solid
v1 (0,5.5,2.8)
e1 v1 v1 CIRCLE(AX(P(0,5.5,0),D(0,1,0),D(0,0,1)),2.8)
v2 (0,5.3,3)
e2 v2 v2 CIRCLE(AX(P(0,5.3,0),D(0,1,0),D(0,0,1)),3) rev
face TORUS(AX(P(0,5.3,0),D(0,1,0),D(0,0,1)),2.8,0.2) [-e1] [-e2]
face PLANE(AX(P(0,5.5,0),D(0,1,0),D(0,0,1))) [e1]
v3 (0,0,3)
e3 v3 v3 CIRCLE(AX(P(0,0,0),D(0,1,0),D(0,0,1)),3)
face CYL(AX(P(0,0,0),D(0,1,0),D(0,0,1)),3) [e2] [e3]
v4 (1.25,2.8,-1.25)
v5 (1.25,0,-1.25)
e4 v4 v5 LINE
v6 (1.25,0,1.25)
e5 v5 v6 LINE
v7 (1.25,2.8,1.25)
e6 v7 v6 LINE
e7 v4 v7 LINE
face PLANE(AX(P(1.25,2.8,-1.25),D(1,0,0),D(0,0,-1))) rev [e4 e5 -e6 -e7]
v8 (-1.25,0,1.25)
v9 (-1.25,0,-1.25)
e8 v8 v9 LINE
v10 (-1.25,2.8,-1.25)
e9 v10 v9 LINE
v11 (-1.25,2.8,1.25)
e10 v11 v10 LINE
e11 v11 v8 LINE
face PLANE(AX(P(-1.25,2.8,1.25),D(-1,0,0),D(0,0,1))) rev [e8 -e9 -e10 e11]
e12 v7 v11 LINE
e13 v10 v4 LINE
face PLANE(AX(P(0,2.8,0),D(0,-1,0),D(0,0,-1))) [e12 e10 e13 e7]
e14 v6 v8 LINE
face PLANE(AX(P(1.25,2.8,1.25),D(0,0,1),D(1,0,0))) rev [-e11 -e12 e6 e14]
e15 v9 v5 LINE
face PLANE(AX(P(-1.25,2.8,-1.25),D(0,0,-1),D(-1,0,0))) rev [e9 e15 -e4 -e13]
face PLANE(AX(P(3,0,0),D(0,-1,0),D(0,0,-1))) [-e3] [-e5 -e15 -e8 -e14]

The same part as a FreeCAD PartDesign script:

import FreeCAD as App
import Part
import Sketcher


def edges_at(feature, points):
    """Names of the edges that pass closest to the given points."""
    edges = feature.Shape.Edges
    near = lambda p: min(range(len(edges)), key=lambda i: edges[i].distToShape(Part.Vertex(*p))[0])
    return sorted({f"Edge{near(p) + 1}" for p in points})

doc = App.newDocument("Part")
body = doc.addObject("PartDesign::Body", "Body")

# Sketch on XY plane
sketch1 = body.newObject("Sketcher::SketchObject", "Sketch")
sketch1.AttachmentSupport = (doc.getObject("XY_Plane"), [""])
sketch1.MapMode = "FlatFace"
sketch1.addGeometry([
    Part.LineSegment(App.Vector(3, 5.5, 0), App.Vector(3, 0, 0)),
    Part.LineSegment(App.Vector(3, 0, 0), App.Vector(0, 0, 0)),
    Part.LineSegment(App.Vector(0, 0, 0), App.Vector(0, 5.5, 0)),
    Part.LineSegment(App.Vector(0, 5.5, 0), App.Vector(3, 5.5, 0)),
], False)
sketch1.addConstraint([
    Sketcher.Constraint("Coincident", 0, 2, 1, 1),
    Sketcher.Constraint("Coincident", 1, 2, 2, 1),
    Sketcher.Constraint("Coincident", 2, 2, 3, 1),
    Sketcher.Constraint("Coincident", 3, 2, 0, 1),
    Sketcher.Constraint("Vertical", 0),
    Sketcher.Constraint("Horizontal", 1),
    Sketcher.Constraint("Vertical", 2),
    Sketcher.Constraint("Horizontal", 3),
    Sketcher.Constraint("Coincident", 1, 2, -1, 1),
    Sketcher.Constraint("DistanceX", 1, 2, 1, 1, 3.0),
    Sketcher.Constraint("DistanceY", 0, 2, 0, 1, 5.5),
])
revolution = body.newObject("PartDesign::Revolution", "Revolution")
revolution.Profile = sketch1
revolution.ReferenceAxis = (sketch1, ["V_Axis"])
revolution.Angle = 360

# Sketch on XZ plane
sketch2 = body.newObject("Sketcher::SketchObject", "Sketch001")
sketch2.AttachmentSupport = (doc.getObject("XZ_Plane"), [""])
sketch2.MapMode = "FlatFace"
sketch2.addGeometry([
    Part.LineSegment(App.Vector(-1.2, 1.2, 0), App.Vector(-1.2, -1.2, 0)),
    Part.LineSegment(App.Vector(-1.2, -1.2, 0), App.Vector(1.2, -1.2, 0)),
    Part.LineSegment(App.Vector(1.2, -1.2, 0), App.Vector(1.2, 1.2, 0)),
    Part.LineSegment(App.Vector(1.2, 1.2, 0), App.Vector(-1.2, 1.2, 0)),
], False)
sketch2.addConstraint([
    Sketcher.Constraint("Coincident", 0, 2, 1, 1),
    Sketcher.Constraint("Coincident", 1, 2, 2, 1),
    Sketcher.Constraint("Coincident", 2, 2, 3, 1),
    Sketcher.Constraint("Coincident", 3, 2, 0, 1),
    Sketcher.Constraint("Vertical", 0),
    Sketcher.Constraint("Horizontal", 1),
    Sketcher.Constraint("Vertical", 2),
    Sketcher.Constraint("Horizontal", 3),
    Sketcher.Constraint("Symmetric", 0, 2, 2, 2, -1, 1),
    Sketcher.Constraint("Equal", 3, 0),
    Sketcher.Constraint("DistanceX", 1, 1, 1, 2, 2.5),
])
pocket1 = body.newObject("PartDesign::Pocket", "Pocket")
pocket1.Profile = sketch2
pocket1.Length = 2.8
doc.recompute()

fillet = body.newObject("PartDesign::Fillet", "Fillet")
fillet.Base = (pocket1, edges_at(pocket1, [(0, 5.5, -3)]))
fillet.Radius = 0.2

doc.recompute()
